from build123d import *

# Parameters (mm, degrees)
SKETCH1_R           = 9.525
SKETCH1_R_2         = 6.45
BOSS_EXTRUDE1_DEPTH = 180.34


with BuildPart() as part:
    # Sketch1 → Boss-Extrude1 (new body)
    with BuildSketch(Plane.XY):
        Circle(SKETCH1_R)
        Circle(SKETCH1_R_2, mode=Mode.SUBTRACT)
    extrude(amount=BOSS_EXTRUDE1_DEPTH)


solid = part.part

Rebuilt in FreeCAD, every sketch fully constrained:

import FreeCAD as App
import Part
import Sketcher
from FreeCAD import Vector
Q = App.Units.Quantity

doc = App.newDocument("Part")
body = doc.addObject("PartDesign::Body", "Body")

sketch1 = body.newObject("Sketcher::SketchObject", "Sketch")
sketch1.AttachmentSupport = (doc.getObject("XY_Plane"), [""])
sketch1.MapMode = "FlatFace"
sketch1.addGeometry([
    Part.Circle(Vector(0, 0, 0), Vector(0, 0, 1), 10),
    Part.Circle(Vector(0, 0, 0), Vector(0, 0, 1), 6),
], False)
sketch1.addConstraint([
    Sketcher.Constraint("Coincident", 0, 3, -1, 1),
    Sketcher.Constraint("Coincident", 1, 3, -1, 1),
    Sketcher.Constraint("Diameter", 0, Q("0.75 in")),
    Sketcher.Constraint("Diameter", 1, Q("12.9 mm")),
])
pad1 = body.newObject("PartDesign::Pad", "Pad")
pad1.Profile = sketch1
pad1.Length = Q("7.1 in")

doc.recompute()
